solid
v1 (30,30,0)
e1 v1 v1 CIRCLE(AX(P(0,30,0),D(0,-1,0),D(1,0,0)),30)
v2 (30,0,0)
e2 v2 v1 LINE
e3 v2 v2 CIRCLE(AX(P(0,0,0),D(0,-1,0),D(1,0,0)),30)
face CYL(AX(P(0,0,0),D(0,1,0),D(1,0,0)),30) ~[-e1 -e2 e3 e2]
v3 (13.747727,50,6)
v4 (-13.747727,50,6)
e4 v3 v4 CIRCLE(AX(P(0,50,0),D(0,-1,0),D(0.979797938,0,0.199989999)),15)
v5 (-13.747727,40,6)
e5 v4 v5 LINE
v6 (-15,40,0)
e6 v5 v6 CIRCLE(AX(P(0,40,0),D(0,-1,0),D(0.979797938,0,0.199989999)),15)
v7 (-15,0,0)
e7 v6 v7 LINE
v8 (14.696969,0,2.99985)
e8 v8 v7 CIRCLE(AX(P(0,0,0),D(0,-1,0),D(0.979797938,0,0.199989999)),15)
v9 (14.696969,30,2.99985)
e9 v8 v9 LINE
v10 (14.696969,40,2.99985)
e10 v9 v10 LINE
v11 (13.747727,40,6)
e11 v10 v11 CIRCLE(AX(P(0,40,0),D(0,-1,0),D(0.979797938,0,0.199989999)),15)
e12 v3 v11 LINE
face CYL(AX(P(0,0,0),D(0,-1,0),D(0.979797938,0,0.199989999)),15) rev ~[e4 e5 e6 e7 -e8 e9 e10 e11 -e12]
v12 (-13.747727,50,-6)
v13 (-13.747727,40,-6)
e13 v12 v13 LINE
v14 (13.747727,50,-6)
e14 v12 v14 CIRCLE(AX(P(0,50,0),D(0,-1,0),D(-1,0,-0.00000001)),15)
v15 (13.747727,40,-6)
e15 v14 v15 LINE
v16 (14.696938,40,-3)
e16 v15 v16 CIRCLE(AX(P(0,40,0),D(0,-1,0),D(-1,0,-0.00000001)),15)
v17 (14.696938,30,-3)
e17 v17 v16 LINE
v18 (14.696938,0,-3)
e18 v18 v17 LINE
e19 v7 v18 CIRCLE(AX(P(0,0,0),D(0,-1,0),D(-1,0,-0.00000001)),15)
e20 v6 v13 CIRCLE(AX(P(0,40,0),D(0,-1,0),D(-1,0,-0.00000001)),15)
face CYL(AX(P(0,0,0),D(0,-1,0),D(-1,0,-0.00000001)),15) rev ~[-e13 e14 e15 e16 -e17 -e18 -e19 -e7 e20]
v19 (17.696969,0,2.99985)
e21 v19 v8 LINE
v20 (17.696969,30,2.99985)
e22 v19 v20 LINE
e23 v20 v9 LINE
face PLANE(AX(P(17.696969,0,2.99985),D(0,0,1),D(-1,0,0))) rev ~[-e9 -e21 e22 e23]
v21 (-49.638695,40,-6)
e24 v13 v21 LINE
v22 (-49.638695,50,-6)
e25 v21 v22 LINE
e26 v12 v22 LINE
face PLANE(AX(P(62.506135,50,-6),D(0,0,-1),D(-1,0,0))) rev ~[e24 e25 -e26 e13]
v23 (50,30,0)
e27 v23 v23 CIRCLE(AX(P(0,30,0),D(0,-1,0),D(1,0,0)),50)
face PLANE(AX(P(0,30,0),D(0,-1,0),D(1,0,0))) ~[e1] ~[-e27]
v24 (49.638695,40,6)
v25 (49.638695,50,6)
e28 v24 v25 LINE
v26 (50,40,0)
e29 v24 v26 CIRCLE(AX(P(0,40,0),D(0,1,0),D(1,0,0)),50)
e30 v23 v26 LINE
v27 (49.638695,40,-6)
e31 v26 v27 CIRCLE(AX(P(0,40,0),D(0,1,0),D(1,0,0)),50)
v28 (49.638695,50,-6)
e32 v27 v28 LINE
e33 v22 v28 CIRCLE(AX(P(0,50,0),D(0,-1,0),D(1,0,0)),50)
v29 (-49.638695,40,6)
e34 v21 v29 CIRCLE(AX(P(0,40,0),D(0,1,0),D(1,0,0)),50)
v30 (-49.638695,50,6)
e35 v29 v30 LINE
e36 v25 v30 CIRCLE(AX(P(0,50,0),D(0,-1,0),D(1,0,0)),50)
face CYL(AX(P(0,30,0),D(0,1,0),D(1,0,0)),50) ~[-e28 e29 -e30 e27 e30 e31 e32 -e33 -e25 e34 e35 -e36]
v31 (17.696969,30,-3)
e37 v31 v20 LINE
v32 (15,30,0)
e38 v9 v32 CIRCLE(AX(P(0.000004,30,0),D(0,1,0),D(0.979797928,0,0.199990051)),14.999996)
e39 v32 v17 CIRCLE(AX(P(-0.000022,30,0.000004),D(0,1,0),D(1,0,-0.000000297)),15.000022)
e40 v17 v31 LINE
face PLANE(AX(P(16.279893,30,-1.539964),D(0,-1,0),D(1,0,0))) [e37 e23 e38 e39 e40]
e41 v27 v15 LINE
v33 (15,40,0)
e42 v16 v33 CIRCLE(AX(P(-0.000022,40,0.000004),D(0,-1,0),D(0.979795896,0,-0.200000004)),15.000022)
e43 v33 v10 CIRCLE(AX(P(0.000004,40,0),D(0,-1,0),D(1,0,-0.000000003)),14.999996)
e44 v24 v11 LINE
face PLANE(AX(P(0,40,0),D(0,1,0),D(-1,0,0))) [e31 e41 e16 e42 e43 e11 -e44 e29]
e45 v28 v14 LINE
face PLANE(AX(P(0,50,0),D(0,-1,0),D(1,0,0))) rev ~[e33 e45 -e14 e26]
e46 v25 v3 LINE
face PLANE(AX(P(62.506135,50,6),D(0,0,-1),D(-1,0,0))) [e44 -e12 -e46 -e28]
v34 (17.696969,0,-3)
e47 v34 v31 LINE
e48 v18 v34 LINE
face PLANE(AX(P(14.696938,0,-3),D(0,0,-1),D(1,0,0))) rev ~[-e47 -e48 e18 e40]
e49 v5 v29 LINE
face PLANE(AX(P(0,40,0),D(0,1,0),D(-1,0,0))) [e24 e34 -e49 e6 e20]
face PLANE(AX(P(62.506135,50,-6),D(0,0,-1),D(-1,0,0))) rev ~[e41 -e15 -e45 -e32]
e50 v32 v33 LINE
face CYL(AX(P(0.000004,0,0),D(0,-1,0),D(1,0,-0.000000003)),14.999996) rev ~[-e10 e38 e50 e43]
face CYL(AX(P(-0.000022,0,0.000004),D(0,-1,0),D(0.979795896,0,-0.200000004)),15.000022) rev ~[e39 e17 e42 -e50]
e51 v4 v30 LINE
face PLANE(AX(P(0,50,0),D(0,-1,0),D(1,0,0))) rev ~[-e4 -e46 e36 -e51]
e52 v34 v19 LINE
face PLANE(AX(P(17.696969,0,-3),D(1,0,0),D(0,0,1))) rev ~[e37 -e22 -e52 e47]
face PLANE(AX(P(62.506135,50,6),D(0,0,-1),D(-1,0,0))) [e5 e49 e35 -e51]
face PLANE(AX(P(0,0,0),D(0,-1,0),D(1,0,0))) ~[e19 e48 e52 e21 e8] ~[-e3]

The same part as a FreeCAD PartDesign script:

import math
import FreeCAD as App
import Part
import Sketcher
from FreeCAD import Vector
Q = App.Units.Quantity


def add_polygon(sketch, points):
    """Adds a closed chain of lines whose ends are joined by coincident constraints."""
    first, n = sketch.GeometryCount, len(points)
    for a, b in zip(points, points[1:] + points[:1]):
        sketch.addGeometry(Part.LineSegment(App.Vector(*a, 0), App.Vector(*b, 0)), False)
    for i in range(n):
        sketch.addConstraint(Sketcher.Constraint("Coincident", first + i, 2, first + (i + 1) % n, 1))

doc = App.newDocument("Part")
body = doc.addObject("PartDesign::Body", "Body")

sketch1 = body.newObject("Sketcher::SketchObject", "Sketch")
sketch1.AttachmentSupport = (doc.getObject("XY_Plane"), [""])
sketch1.MapMode = "FlatFace"
add_polygon(sketch1, [(0, 50), (0, 0), (30, 0), (30, 30), (50, 30), (50, 50)])
sketch1.addConstraint([
    Sketcher.Constraint("Vertical", 0),
    Sketcher.Constraint("Horizontal", 1),
    Sketcher.Constraint("Vertical", 2),
    Sketcher.Constraint("Horizontal", 3),
    Sketcher.Constraint("Vertical", 4),
    Sketcher.Constraint("Horizontal", 5),
    Sketcher.Constraint("Coincident", 0, 2, -1, 1),
    Sketcher.Constraint("Equal", 5, 0),
    Sketcher.Constraint("Equal", 1, 2),
    Sketcher.Constraint("DistanceX", 1, 1, 1, 2, Q("30 mm")),
    Sketcher.Constraint("DistanceX", 3, 1, 3, 2, Q("20 mm")),
])
revolution = body.newObject("PartDesign::Revolution", "Revolution")
revolution.Profile = sketch1
revolution.ReferenceAxis = (sketch1, ["V_Axis"])
revolution.Angle = 360

sketch2 = body.newObject("Sketcher::SketchObject", "Sketch001")
sketch2.AttachmentSupport = (doc.getObject("XZ_Plane"), [""])
sketch2.MapMode = "FlatFace"
sketch2.addGeometry([
    Part.ArcOfCircle(Part.Circle(Vector(0.000004, 0, 0), Vector(0, 0, 1), 14.999996), math.radians(0), math.radians(11.536377)),
    Part.ArcOfCircle(Part.Circle(Vector(0, 0, 0), Vector(0, 0, 1), 15), math.radians(11.536374), math.radians(180)),
    Part.ArcOfCircle(Part.Circle(Vector(0, 0, 0), Vector(0, 0, 1), 15), math.radians(-179.999999), math.radians(-11.53696)),
    Part.ArcOfCircle(Part.Circle(Vector(-0.000022, 0.000004, 0), Vector(0, 0, 1), 15.000022), math.radians(-11.536959), math.radians(-0.000017)),
], False)
sketch2.addConstraint([
    Sketcher.Constraint("Coincident", 0, 2, 1, 1),
    Sketcher.Constraint("Coincident", 1, 2, 2, 1),
    Sketcher.Constraint("Coincident", 2, 2, 3, 1),
    Sketcher.Constraint("Coincident", 3, 2, 0, 1),
    Sketcher.Constraint("Coincident", 0, 3, -1, 1),
    Sketcher.Constraint("Coincident", 1, 3, -1, 1),
    Sketcher.Constraint("Coincident", 2, 3, -1, 1),
    Sketcher.Constraint("PointOnObject", 1, 2, -1),
    Sketcher.Constraint("PointOnObject", 3, 2, -1),
    Sketcher.Constraint("Radius", 1, Q("15 mm")),
    Sketcher.Constraint("DistanceY", 2, 2, -1, 1, Q("3 mm")),
    Sketcher.Constraint("Radius", 3, Q("15.000022 mm")),
    Sketcher.Constraint("DistanceX", -1, 1, 0, 2, Q("14.696969 mm")),
])
pocket1 = body.newObject("PartDesign::Pocket", "Pocket")
pocket1.Profile = sketch2
pocket1.Type = "ThroughAll"

sketch3 = body.newObject("Sketcher::SketchObject", "Sketch002")
sketch3.AttachmentSupport = (doc.getObject("XZ_Plane"), [""])
sketch3.MapMode = "FlatFace"
sketch3.addGeometry([
    Part.ArcOfCircle(Part.Circle(Vector(-0.000022, 0.000004, 0), Vector(0, 0, 1), 15.000022), math.radians(-11.536959), math.radians(-0.000017)),
    Part.LineSegment(Vector(14.696938, -3, 0), Vector(17.696969, -3, 0)),
    Part.LineSegment(Vector(17.696969, -3, 0), Vector(17.696969, 2.99985, 0)),
    Part.LineSegment(Vector(17.696969, 2.99985, 0), Vector(14.696969, 2.99985, 0)),
    Part.ArcOfCircle(Part.Circle(Vector(0.000004, 0, 0), Vector(0, 0, 1), 14.999996), math.radians(0), math.radians(11.536377)),
    Part.LineSegment(Vector(9.649316, 2.99985, 0), Vector(14.696969, 2.99985, 0)),
    Part.ArcOfCircle(Part.Circle(Vector(0, 0, 0), Vector(0, 0, 1), 15), math.radians(11.536374), math.radians(180)),
    Part.ArcOfCircle(Part.Circle(Vector(0, 0, 0), Vector(0, 0, 1), 15), math.radians(-179.999999), math.radians(-11.53696)),
    Part.LineSegment(Vector(14.696938, -3, 0), Vector(9.809938, -3, 0)),
    Part.LineSegment(Vector(9.809938, -3, 0), Vector(9.729625, 0, 0)),
    Part.LineSegment(Vector(9.729625, 0, 0), Vector(9.649316, 2.99985, 0)),
], False)
sketch3.addConstraint([
    Sketcher.Constraint("Coincident", 0, 1, 1, 1),
    Sketcher.Constraint("Coincident", 1, 2, 2, 1),
    Sketcher.Constraint("Coincident", 2, 2, 3, 1),
    Sketcher.Constraint("Coincident", 3, 2, 4, 2),
    Sketcher.Constraint("Coincident", 4, 1, 0, 2),
    Sketcher.Constraint("Coincident", 5, 2, 6, 1),
    Sketcher.Constraint("Coincident", 6, 2, 7, 1),
    Sketcher.Constraint("Coincident", 7, 2, 8, 1),
    Sketcher.Constraint("Coincident", 8, 2, 9, 1),
    Sketcher.Constraint("Coincident", 9, 2, 10, 1),
    Sketcher.Constraint("Coincident", 10, 2, 5, 1),
    Sketcher.Constraint("Horizontal", 1),
    Sketcher.Constraint("Vertical", 2),
    Sketcher.Constraint("Horizontal", 3),
    Sketcher.Constraint("Horizontal", 5),
    Sketcher.Constraint("Horizontal", 8),
    Sketcher.Constraint("Coincident", 4, 3, -1, 1),
    Sketcher.Constraint("Coincident", 6, 3, -1, 1),
    Sketcher.Constraint("Coincident", 7, 3, -1, 1),
    Sketcher.Constraint("Coincident", 5, 2, 3, 2),
    Sketcher.Constraint("Coincident", 7, 2, 0, 1),
    Sketcher.Constraint("PointOnObject", 4, 1, -1),
    Sketcher.Constraint("PointOnObject", 6, 2, -1),
    Sketcher.Constraint("PointOnObject", 9, 2, -1),
    Sketcher.Constraint("Radius", 6, Q("15 mm")),
    Sketcher.Constraint("DistanceX", 3, 2, 3, 1, Q("3 mm")),
    Sketcher.Constraint("DistanceY", 0, 1, -1, 1, Q("3 mm")),
    Sketcher.Constraint("DistanceX", 8, 2, 8, 1, Q("4.887 mm")),
    Sketcher.Constraint("Radius", 0, Q("15.000022 mm")),
    Sketcher.Constraint("DistanceX", 1, 1, 1, 2, Q("3.000031 mm")),
    Sketcher.Constraint("DistanceX", 5, 1, 5, 2, Q("5.047653 mm")),
    Sketcher.Constraint("DistanceX", 10, 2, 9, 2, Q("0.080309 mm")),
])
pocket2 = body.newObject("PartDesign::Pocket", "Pocket001")
pocket2.Profile = sketch3
pocket2.Length = 30

sketch4 = body.newObject("Sketcher::SketchObject", "Sketch003")
sketch4.AttachmentSupport = (doc.getObject("XZ_Plane"), [""])
sketch4.MapMode = "FlatFace"
sketch4.AttachmentOffset = App.Placement(Vector(0, 0, -50), App.Rotation())
add_polygon(sketch4, [(63, 6), (63, -6), (-63, -6), (-63, 6)])
sketch4.addConstraint([
    Sketcher.Constraint("Vertical", 0),
    Sketcher.Constraint("Horizontal", 1),
    Sketcher.Constraint("Vertical", 2),
    Sketcher.Constraint("Horizontal", 3),
    Sketcher.Constraint("Symmetric", 0, 2, 2, 2, -1, 1),
    Sketcher.Constraint("DistanceY", 0, 2, 0, 1, Q("12 mm")),
    Sketcher.Constraint("DistanceX", 1, 2, 1, 1, Q("125.01227 mm")),
])
pocket3 = body.newObject("PartDesign::Pocket", "Pocket002")
pocket3.Profile = sketch4
pocket3.Length = 10
pocket3.Reversed = True

doc.recompute()
